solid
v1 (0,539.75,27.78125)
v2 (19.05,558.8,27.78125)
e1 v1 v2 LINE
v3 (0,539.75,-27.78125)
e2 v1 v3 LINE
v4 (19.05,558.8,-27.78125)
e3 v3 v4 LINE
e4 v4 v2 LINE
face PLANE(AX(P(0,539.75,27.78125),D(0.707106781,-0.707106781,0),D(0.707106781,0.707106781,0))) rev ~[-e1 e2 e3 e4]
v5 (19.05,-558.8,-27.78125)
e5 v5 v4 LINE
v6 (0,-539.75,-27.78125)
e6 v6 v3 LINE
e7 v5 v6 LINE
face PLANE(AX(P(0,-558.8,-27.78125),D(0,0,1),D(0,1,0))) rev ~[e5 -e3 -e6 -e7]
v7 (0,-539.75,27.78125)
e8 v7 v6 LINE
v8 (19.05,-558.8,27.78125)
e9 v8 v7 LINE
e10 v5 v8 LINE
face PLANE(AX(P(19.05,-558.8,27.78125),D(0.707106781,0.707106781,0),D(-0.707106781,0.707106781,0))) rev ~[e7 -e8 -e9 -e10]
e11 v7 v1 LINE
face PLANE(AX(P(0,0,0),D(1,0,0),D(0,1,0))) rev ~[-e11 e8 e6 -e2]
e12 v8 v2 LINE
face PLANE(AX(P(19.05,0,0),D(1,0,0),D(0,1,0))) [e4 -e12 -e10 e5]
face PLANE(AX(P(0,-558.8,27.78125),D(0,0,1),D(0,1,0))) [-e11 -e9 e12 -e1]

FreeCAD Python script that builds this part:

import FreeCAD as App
import Part
import Sketcher
from FreeCAD import Vector
Q = App.Units.Quantity


def add_polygon(sketch, points):
    """Adds a closed chain of lines whose ends are joined by coincident constraints."""
    first, n = sketch.GeometryCount, len(points)
    for a, b in zip(points, points[1:] + points[:1]):
        sketch.addGeometry(Part.LineSegment(App.Vector(*a, 0), App.Vector(*b, 0)), False)
    for i in range(n):
        sketch.addConstraint(Sketcher.Constraint("Coincident", first + i, 2, first + (i + 1) % n, 1))

doc = App.newDocument("Part")
body = doc.addObject("PartDesign::Body", "Body")

# Sketch on YZ plane
sketch1 = doc.addObject("Sketcher::SketchObject", "Sketch")
body.addObject(sketch1)
sketch1.AttachmentSupport = (doc.YZ_Plane, [""])
sketch1.MapMode = "FlatFace"
add_polygon(sketch1, [(-558.8, 27.78125), (-558.8, -27.78125), (558.8, -27.78125), (558.8, 27.78125)])  # lines 0-3
sketch1.addConstraint([
    Sketcher.Constraint("Vertical", 0),
    Sketcher.Constraint("Horizontal", 1),
    Sketcher.Constraint("Vertical", 2),
    Sketcher.Constraint("Horizontal", 3),
    Sketcher.Constraint("Symmetric", 0, 2, 2, 2, -1, 1),
    Sketcher.Constraint("DistanceX", 1, 1, 1, 2, Q("44 in")),
    Sketcher.Constraint("DistanceY", 0, 2, 0, 1, Q("2.1875 in")),
])
pad1 = doc.addObject("PartDesign::Pad", "Pad")
body.addObject(pad1)
pad1.Profile = sketch1
pad1.Length = Q("0.75 in")

# Sketch on XY plane
sketch2 = doc.addObject("Sketcher::SketchObject", "Sketch001")
body.addObject(sketch2)
sketch2.AttachmentSupport = (doc.XY_Plane, [""])
sketch2.MapMode = "FlatFace"
sketch2.AttachmentOffset = App.Placement(Vector(0, 0, 1.09375 * 25.4), App.Rotation())
add_polygon(sketch2, [(0, 539.75), (19.05, 558.8), (0, 558.8)])  # lines 0-2
add_polygon(sketch2, [(0, -558.8), (19.05, -558.8), (0, -539.75)])  # lines 3-5
sketch2.addConstraint([
    Sketcher.Constraint("Horizontal", 1),
    Sketcher.Constraint("Vertical", 2),
    Sketcher.Constraint("Horizontal", 3),
    Sketcher.Constraint("Vertical", 5),
    Sketcher.Constraint("Symmetric", 2, 2, 4, 2, -1, 1),
    Sketcher.Constraint("Symmetric", 0, 2, 3, 2, -1),
    Sketcher.Constraint("PointOnObject", 1, 2, -2),
    Sketcher.Constraint("Perpendicular", 0, 4),
    Sketcher.Constraint("DistanceY", -1, 1, 0, 2, Q("22 in")),
    Sketcher.Constraint("DistanceX", 1, 2, 1, 1, Q("0.75 in")),
])
pocket1 = doc.addObject("PartDesign::Pocket", "Pocket")
body.addObject(pocket1)
pocket1.Profile = sketch2
pocket1.Type = "ThroughAll"

doc.recompute()
